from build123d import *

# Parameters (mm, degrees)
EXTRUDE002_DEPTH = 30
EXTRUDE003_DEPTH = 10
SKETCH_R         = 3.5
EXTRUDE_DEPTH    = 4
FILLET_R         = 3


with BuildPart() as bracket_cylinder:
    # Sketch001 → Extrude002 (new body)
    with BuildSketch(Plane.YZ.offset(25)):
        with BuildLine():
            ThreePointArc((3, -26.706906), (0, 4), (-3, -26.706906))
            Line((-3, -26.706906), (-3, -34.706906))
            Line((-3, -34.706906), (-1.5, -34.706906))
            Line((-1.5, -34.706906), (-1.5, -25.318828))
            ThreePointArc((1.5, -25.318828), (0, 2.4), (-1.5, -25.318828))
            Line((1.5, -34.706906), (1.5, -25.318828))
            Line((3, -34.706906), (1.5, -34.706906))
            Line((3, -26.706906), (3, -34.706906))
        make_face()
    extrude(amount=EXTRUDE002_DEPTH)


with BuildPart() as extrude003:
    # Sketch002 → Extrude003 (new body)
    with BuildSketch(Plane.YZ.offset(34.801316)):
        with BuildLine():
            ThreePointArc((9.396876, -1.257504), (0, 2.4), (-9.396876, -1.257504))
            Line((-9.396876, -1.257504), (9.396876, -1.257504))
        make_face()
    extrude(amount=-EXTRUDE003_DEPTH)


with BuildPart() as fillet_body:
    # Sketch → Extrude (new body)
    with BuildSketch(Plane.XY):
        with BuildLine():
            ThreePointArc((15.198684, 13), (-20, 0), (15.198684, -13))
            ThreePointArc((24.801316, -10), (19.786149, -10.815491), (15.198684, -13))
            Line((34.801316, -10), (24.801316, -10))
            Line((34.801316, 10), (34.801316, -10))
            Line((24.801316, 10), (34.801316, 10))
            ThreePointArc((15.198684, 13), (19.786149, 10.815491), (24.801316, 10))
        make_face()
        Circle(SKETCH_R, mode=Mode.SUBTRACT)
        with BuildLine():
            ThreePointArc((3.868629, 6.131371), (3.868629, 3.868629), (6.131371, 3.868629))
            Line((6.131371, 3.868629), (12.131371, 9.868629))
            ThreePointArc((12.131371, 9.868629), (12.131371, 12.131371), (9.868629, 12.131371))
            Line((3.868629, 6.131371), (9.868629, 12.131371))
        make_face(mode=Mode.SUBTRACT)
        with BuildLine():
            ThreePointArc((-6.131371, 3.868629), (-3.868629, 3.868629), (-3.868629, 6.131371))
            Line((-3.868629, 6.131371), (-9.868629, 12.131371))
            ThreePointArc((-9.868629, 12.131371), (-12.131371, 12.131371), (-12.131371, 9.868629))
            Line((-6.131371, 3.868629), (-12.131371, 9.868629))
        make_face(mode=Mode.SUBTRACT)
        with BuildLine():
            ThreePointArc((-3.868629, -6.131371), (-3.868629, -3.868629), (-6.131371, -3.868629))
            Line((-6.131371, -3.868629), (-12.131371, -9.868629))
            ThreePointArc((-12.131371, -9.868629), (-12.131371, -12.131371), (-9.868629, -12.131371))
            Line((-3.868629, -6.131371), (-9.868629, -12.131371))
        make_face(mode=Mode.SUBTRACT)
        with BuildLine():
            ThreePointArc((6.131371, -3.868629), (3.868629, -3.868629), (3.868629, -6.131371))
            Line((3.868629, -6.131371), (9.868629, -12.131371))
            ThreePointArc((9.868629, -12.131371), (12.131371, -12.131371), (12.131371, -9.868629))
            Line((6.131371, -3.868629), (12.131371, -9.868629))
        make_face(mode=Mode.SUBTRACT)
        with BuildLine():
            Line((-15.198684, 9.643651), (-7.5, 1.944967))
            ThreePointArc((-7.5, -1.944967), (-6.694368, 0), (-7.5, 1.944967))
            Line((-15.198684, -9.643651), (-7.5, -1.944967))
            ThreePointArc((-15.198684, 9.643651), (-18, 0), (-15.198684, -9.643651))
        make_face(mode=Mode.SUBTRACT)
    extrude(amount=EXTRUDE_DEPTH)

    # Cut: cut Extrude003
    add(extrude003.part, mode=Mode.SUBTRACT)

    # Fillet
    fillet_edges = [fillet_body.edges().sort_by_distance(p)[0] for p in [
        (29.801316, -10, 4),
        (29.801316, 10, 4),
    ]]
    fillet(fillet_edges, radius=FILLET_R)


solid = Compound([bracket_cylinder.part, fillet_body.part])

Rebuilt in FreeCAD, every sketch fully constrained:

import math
import FreeCAD as App
import Part
import Sketcher
Q = App.Units.Quantity


def edges_at(feature, points):
    """Names of the edges that pass closest to the given points."""
    edges = feature.Shape.Edges
    near = lambda p: min(range(len(edges)), key=lambda i: edges[i].distToShape(Part.Vertex(*p))[0])
    return sorted({f"Edge{near(p) + 1}" for p in points})

doc = App.newDocument("Part")
body = doc.addObject("PartDesign::Body", "Body")

# Sketch on YZ plane
sketch1 = doc.addObject("Sketcher::SketchObject", "Sketch")
body.addObject(sketch1)
sketch1.AttachmentSupport = (doc.YZ_Plane, [""])
sketch1.MapMode = "FlatFace"
sketch1.AttachmentOffset = App.Placement(App.Vector(0, 0, 25), App.Rotation())
sketch1.addGeometry([
    Part.ArcOfCircle(Part.Circle(App.Vector(0, -11.5, 0), App.Vector(0, 0, 1), 15.5), math.radians(-78.840063), math.radians(258.840063)),  # 0
    Part.LineSegment(App.Vector(-3, -26.706906, 0), App.Vector(-3, -34.706906, 0)),  # 1
    Part.LineSegment(App.Vector(-3, -34.706906, 0), App.Vector(-1.5, -34.706906, 0)),  # 2
    Part.LineSegment(App.Vector(-1.5, -34.706906, 0), App.Vector(-1.5, -25.318828, 0)),  # 3
    Part.ArcOfCircle(Part.Circle(App.Vector(0, -11.5, 0), App.Vector(0, 0, 1), 13.9), math.radians(-83.804938), math.radians(263.804938)),  # 4
    Part.LineSegment(App.Vector(1.5, -25.318828, 0), App.Vector(1.5, -34.706906, 0)),  # 5
    Part.LineSegment(App.Vector(1.5, -34.706906, 0), App.Vector(3, -34.706906, 0)),  # 6
    Part.LineSegment(App.Vector(3, -34.706906, 0), App.Vector(3, -26.706906, 0)),  # 7
], False)
sketch1.addConstraint([
    Sketcher.Constraint("Coincident", 0, 2, 1, 1),
    Sketcher.Constraint("Coincident", 1, 2, 2, 1),
    Sketcher.Constraint("Coincident", 2, 2, 3, 1),
    Sketcher.Constraint("Coincident", 3, 2, 4, 2),
    Sketcher.Constraint("Coincident", 4, 1, 5, 1),
    Sketcher.Constraint("Coincident", 5, 2, 6, 1),
    Sketcher.Constraint("Coincident", 6, 2, 7, 1),
    Sketcher.Constraint("Coincident", 7, 2, 0, 1),
    Sketcher.Constraint("Vertical", 1),
    Sketcher.Constraint("Horizontal", 2),
    Sketcher.Constraint("Vertical", 3),
    Sketcher.Constraint("Vertical", 5),
    Sketcher.Constraint("Horizontal", 6),
    Sketcher.Constraint("Vertical", 7),
    Sketcher.Constraint("Coincident", 4, 3, 0, 3),
    Sketcher.Constraint("Symmetric", 3, 2, 4, 1, -2),
    Sketcher.Constraint("Symmetric", 1, 2, 6, 2, -2),
    Sketcher.Constraint("Radius", 0, Q("15.5 mm")),
    Sketcher.Constraint("Radius", 4, Q("13.9 mm")),
    Sketcher.Constraint("DistanceY", 1, 2, 1, 1, Q("8 mm")),
    Sketcher.Constraint("DistanceX", 2, 1, 2, 2, Q("1.5 mm")),
    Sketcher.Constraint("DistanceX", 0, 2, -1, 1, Q("3 mm")),
    Sketcher.Constraint("DistanceY", 0, 3, -1, 1, Q("11.5 mm")),
])
pad1 = doc.addObject("PartDesign::Pad", "Pad")
body.addObject(pad1)
pad1.Profile = sketch1
pad1.Length = 30
body2 = doc.addObject("PartDesign::Body", "Body001")

# Sketch on YZ plane
sketch2 = doc.addObject("Sketcher::SketchObject", "Sketch001")
body2.addObject(sketch2)
sketch2.AttachmentSupport = (doc.getObject("YZ_Plane001"), [""])
sketch2.MapMode = "FlatFace"
sketch2.AttachmentOffset = App.Placement(App.Vector(0, 0, 34.801316), App.Rotation())
sketch2.addGeometry([
    Part.ArcOfCircle(Part.Circle(App.Vector(0, -11.5, 0), App.Vector(0, 0, 1), 13.9), math.radians(47.465485), math.radians(132.534515)),
    Part.LineSegment(App.Vector(-9.396876, -1.257504, 0), App.Vector(9.396876, -1.257504, 0)),
], False)
sketch2.addConstraint([
    Sketcher.Constraint("Coincident", 0, 1, 1, 2),
    Sketcher.Constraint("Coincident", 1, 1, 0, 2),
    Sketcher.Constraint("Horizontal", 1),
    Sketcher.Constraint("PointOnObject", 0, 3, -2),
    Sketcher.Constraint("Radius", 0, Q("13.9 mm")),
    Sketcher.Constraint("DistanceY", 0, 3, -1, 1, Q("11.5 mm")),
    Sketcher.Constraint("DistanceX", 1, 1, 1, 2, Q("18.793752 mm")),
])
pad2 = doc.addObject("PartDesign::Pad", "Pad001")
body2.addObject(pad2)
pad2.Profile = sketch2
pad2.Length = 10
pad2.Reversed = True
body3 = doc.addObject("PartDesign::Body", "Body002")

# Sketch on XY plane
sketch3 = doc.addObject("Sketcher::SketchObject", "Sketch002")
body3.addObject(sketch3)
sketch3.AttachmentSupport = (doc.getObject("XY_Plane002"), [""])
sketch3.MapMode = "FlatFace"
sketch3.addGeometry([
    Part.ArcOfCircle(Part.Circle(App.Vector(0, 0, 0), App.Vector(0, 0, 1), 20), math.radians(40.541602), math.radians(319.458398)),  # 0
    Part.ArcOfCircle(Part.Circle(App.Vector(25.15376, -27.996552, 0), App.Vector(0, 0, 1), 18.000003), math.radians(91.121934), math.radians(123.577173)),  # 1
    Part.LineSegment(App.Vector(24.801316, -10, 0), App.Vector(34.801316, -10, 0)),  # 2
    Part.LineSegment(App.Vector(34.801316, -10, 0), App.Vector(34.801316, 10, 0)),  # 3
    Part.LineSegment(App.Vector(34.801316, 10, 0), App.Vector(24.801316, 10, 0)),  # 4
    Part.ArcOfCircle(Part.Circle(App.Vector(25.15376, 27.996552, 0), App.Vector(0, 0, 1), 18.000003), math.radians(-123.577173), math.radians(-91.121934)),  # 5
    Part.ArcOfCircle(Part.Circle(App.Vector(-5, -5, 0), App.Vector(0, 0, 1), 1.6), math.radians(-45), math.radians(135)),  # 6
    Part.LineSegment(App.Vector(-3.868629, -6.131371, 0), App.Vector(-9.868629, -12.131371, 0)),  # 7
    Part.ArcOfCircle(Part.Circle(App.Vector(-11, -11, 0), App.Vector(0, 0, 1), 1.6), math.radians(135), math.radians(315)),  # 8
    Part.LineSegment(App.Vector(-12.131371, -9.868629, 0), App.Vector(-6.131371, -3.868629, 0)),  # 9
    Part.ArcOfCircle(Part.Circle(App.Vector(5, -5, 0), App.Vector(0, 0, 1), 1.6), math.radians(45), math.radians(225)),  # 10
    Part.LineSegment(App.Vector(6.131371, -3.868629, 0), App.Vector(12.131371, -9.868629, 0)),  # 11
    Part.ArcOfCircle(Part.Circle(App.Vector(11, -11, 0), App.Vector(0, 0, 1), 1.6), math.radians(-135), math.radians(45)),  # 12
    Part.LineSegment(App.Vector(9.868629, -12.131371, 0), App.Vector(3.868629, -6.131371, 0)),  # 13
    Part.ArcOfCircle(Part.Circle(App.Vector(0, 0, 0), App.Vector(0, 0, 1), 18), math.radians(147.604642), math.radians(212.395358)),  # 14
    Part.LineSegment(App.Vector(-15.198684, 9.643651, 0), App.Vector(-7.5, 1.944967, 0)),  # 15
    Part.ArcOfCircle(Part.Circle(App.Vector(-9.444966, 0, 0), App.Vector(0, 0, 1), 2.750598), math.radians(-45.000015), math.radians(45.000015)),  # 16
    Part.LineSegment(App.Vector(-7.5, -1.944967, 0), App.Vector(-15.198684, -9.643651, 0)),  # 17
    Part.ArcOfCircle(Part.Circle(App.Vector(-5, 5, 0), App.Vector(0, 0, 1), 1.6), math.radians(-135), math.radians(45)),  # 18
    Part.LineSegment(App.Vector(-6.131371, 3.868629, 0), App.Vector(-12.131371, 9.868629, 0)),  # 19
    Part.ArcOfCircle(Part.Circle(App.Vector(-11, 11, 0), App.Vector(0, 0, 1), 1.6), math.radians(45), math.radians(225)),  # 20
    Part.LineSegment(App.Vector(-9.868629, 12.131371, 0), App.Vector(-3.868629, 6.131371, 0)),  # 21
    Part.Circle(App.Vector(0, 0, 0), App.Vector(0, 0, 1), 3.5),  # 22
    Part.ArcOfCircle(Part.Circle(App.Vector(5, 5, 0), App.Vector(0, 0, 1), 1.6), math.radians(135), math.radians(315)),  # 23
    Part.LineSegment(App.Vector(3.868629, 6.131371, 0), App.Vector(9.868629, 12.131371, 0)),  # 24
    Part.ArcOfCircle(Part.Circle(App.Vector(11, 11, 0), App.Vector(0, 0, 1), 1.6), math.radians(-45), math.radians(135)),  # 25
    Part.LineSegment(App.Vector(12.131371, 9.868629, 0), App.Vector(6.131371, 3.868629, 0)),  # 26
], False)
sketch3.addConstraint([
    Sketcher.Constraint("Coincident", 0, 2, 1, 2),
    Sketcher.Constraint("Coincident", 1, 1, 2, 1),
    Sketcher.Constraint("Coincident", 2, 2, 3, 1),
    Sketcher.Constraint("Coincident", 3, 2, 4, 1),
    Sketcher.Constraint("Coincident", 4, 2, 5, 2),
    Sketcher.Constraint("Coincident", 5, 1, 0, 1),
    Sketcher.Constraint("Tangent", 6, 1, 7, 1),
    Sketcher.Constraint("Tangent", 7, 2, 8, 2),
    Sketcher.Constraint("Tangent", 8, 1, 9, 1),
    Sketcher.Constraint("Tangent", 9, 2, 6, 2),
    Sketcher.Constraint("Tangent", 10, 1, 11, 1),
    Sketcher.Constraint("Tangent", 11, 2, 12, 2),
    Sketcher.Constraint("Tangent", 12, 1, 13, 1),
    Sketcher.Constraint("Tangent", 13, 2, 10, 2),
    Sketcher.Constraint("Coincident", 14, 1, 15, 1),
    Sketcher.Constraint("Tangent", 15, 2, 16, 2),
    Sketcher.Constraint("Tangent", 16, 1, 17, 1),
    Sketcher.Constraint("Coincident", 17, 2, 14, 2),
    Sketcher.Constraint("Tangent", 18, 1, 19, 1),
    Sketcher.Constraint("Tangent", 19, 2, 20, 2),
    Sketcher.Constraint("Tangent", 20, 1, 21, 1),
    Sketcher.Constraint("Tangent", 21, 2, 18, 2),
    Sketcher.Constraint("Tangent", 23, 1, 24, 1),
    Sketcher.Constraint("Tangent", 24, 2, 25, 2),
    Sketcher.Constraint("Tangent", 25, 1, 26, 1),
    Sketcher.Constraint("Tangent", 26, 2, 23, 2),
    Sketcher.Constraint("Horizontal", 2),
    Sketcher.Constraint("Vertical", 3),
    Sketcher.Constraint("Horizontal", 4),
    Sketcher.Constraint("Coincident", 0, 3, -1, 1),
    Sketcher.Constraint("Coincident", 14, 3, -1, 1),
    Sketcher.Constraint("Coincident", 22, 3, -1, 1),
    Sketcher.Constraint("Equal", 1, 5),
    Sketcher.Constraint("Equal", 6, 8),
    Sketcher.Constraint("Equal", 8, 10),
    Sketcher.Constraint("Equal", 10, 12),
    Sketcher.Constraint("Equal", 12, 18),
    Sketcher.Constraint("Equal", 18, 20),
    Sketcher.Constraint("Equal", 20, 23),
    Sketcher.Constraint("Equal", 23, 25),
    Sketcher.Constraint("Symmetric", 10, 3, 18, 3, -1, 1),
    Sketcher.Constraint("Symmetric", 12, 3, 20, 3, -1, 1),
    Sketcher.Constraint("Symmetric", 6, 3, 23, 3, -1, 1),
    Sketcher.Constraint("Symmetric", 8, 3, 25, 3, -1, 1),
    Sketcher.Constraint("Symmetric", 6, 3, 10, 3, -2),
    Sketcher.Constraint("Symmetric", 8, 3, 12, 3, -2),
    Sketcher.Constraint("Symmetric", 1, 3, 5, 3, -1),
    Sketcher.Constraint("Symmetric", 15, 2, 16, 1, -1),
    Sketcher.Constraint("Perpendicular", 9, 11),
    Sketcher.Constraint("Parallel", 13, 15),
    Sketcher.Constraint("Vertical", 1, 1, 4, 2),
    Sketcher.Constraint("Diameter", 22, Q("7 mm")),
    Sketcher.Constraint("Radius", 0, Q("20 mm")),
    Sketcher.Constraint("Radius", 14, Q("18 mm")),
    Sketcher.Constraint("Radius", 6, Q("1.6 mm")),
    Sketcher.Constraint("DistanceX", 2, 1, 2, 2, Q("10 mm")),
    Sketcher.Constraint("DistanceY", 3, 1, 3, 2, Q("20 mm")),
    Sketcher.Constraint("DistanceX", 6, 3, -1, 1, Q("5 mm")),
    Sketcher.Constraint("DistanceY", 6, 3, -1, 1, Q("5 mm")),
    Sketcher.Constraint("DistanceX", 8, 3, -1, 1, Q("11 mm")),
    Sketcher.Constraint("DistanceY", 0, 2, -1, 1, Q("13 mm")),
    Sketcher.Constraint("DistanceX", 15, 2, -1, 1, Q("7.5 mm")),
    Sketcher.Constraint("Radius", 16, Q("2.750598 mm")),
    Sketcher.Constraint("Radius", 1, Q("18.000003 mm")),
    Sketcher.Constraint("DistanceX", -1, 1, 1, 3, Q("25.15376 mm")),
])
pad3 = doc.addObject("PartDesign::Pad", "Pad002")
body3.addObject(pad3)
pad3.Profile = sketch3
pad3.Length = 4
doc.recompute()

boolean = doc.addObject("PartDesign::Boolean", "Boolean")
body3.addObject(boolean)
boolean.Type = "Cut"
boolean.addObjects([body2])
doc.recompute()

fillet = doc.addObject("PartDesign::Fillet", "Fillet")
body3.addObject(fillet)
fillet.Base = (boolean, edges_at(boolean, [(29.801, -10, 4), (29.801, 10, 4)]))
fillet.Radius = 3

doc.recompute()
